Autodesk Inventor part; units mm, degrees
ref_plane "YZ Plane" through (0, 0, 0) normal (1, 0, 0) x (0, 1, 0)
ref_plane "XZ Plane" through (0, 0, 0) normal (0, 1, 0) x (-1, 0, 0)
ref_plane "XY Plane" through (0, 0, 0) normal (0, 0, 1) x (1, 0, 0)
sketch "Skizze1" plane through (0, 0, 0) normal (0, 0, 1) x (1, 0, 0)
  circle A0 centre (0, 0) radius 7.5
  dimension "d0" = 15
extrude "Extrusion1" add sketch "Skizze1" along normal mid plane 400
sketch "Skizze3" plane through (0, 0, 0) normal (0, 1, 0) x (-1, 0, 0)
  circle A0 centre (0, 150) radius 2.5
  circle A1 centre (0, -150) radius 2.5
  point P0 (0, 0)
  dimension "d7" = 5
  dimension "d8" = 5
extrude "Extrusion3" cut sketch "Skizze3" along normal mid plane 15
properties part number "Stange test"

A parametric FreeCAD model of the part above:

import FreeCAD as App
import Part
import Sketcher

doc = App.newDocument("Part")
params = doc.addObject("Spreadsheet::Sheet", "Params")
for row, (alias, value) in enumerate([
    ("sketch1_diameter", "15 mm"),
    ("pad1_length", "400 mm"),
    ("sketch2_diameter", "5 mm"),
    ("pocket1_length", "15 mm"),
], start=1):
    params.set(f"A{row}", alias)
    params.set(f"B{row}", "=" + value)
    params.setAlias(f"B{row}", alias)

body = doc.addObject("PartDesign::Body", "Body")

sketch1 = body.newObject("Sketcher::SketchObject", "Sketch")
sketch1.AttachmentSupport = (doc.getObject("XY_Plane"), [""])
sketch1.MapMode = "FlatFace"
sketch1.addGeometry(Part.Circle(App.Vector(0, 0, 0), App.Vector(0, 0, 1), 7.5), False)
sketch1.addConstraint(Sketcher.Constraint("Coincident", 0, 3, -1, 1))
sketch1.addConstraint(Sketcher.Constraint("Diameter", 0, 15.0))
sketch1.setExpression("Constraints[1]", "Params.sketch1_diameter")
pad1 = body.newObject("PartDesign::Pad", "Pad")
pad1.Profile = sketch1
pad1.setExpression("Length", "Params.pad1_length")
pad1.Midplane = True

sketch2 = body.newObject("Sketcher::SketchObject", "Sketch001")
sketch2.AttachmentSupport = (doc.getObject("XZ_Plane"), [""])
sketch2.MapMode = "FlatFace"
sketch2.addGeometry(Part.Circle(App.Vector(0, 150, 0), App.Vector(0, 0, 1), 2.5), False)
sketch2.addGeometry(Part.Circle(App.Vector(0, -150, 0), App.Vector(0, 0, 1), 2.5), False)
sketch2.addConstraint(Sketcher.Constraint("Equal", 0, 1))
sketch2.addConstraint(Sketcher.Constraint("Symmetric", 0, 3, 1, 3, -1, 1))
sketch2.addConstraint(Sketcher.Constraint("PointOnObject", 0, 3, -2))
sketch2.addConstraint(Sketcher.Constraint("Diameter", 0, 5.0))
sketch2.addConstraint(Sketcher.Constraint("DistanceY", -1, 1, 0, 3, 150.0))
sketch2.setExpression("Constraints[3]", "Params.sketch2_diameter")
pocket1 = body.newObject("PartDesign::Pocket", "Pocket")
pocket1.Profile = sketch2
pocket1.setExpression("Length", "Params.pocket1_length")
pocket1.Midplane = True

doc.recompute()
